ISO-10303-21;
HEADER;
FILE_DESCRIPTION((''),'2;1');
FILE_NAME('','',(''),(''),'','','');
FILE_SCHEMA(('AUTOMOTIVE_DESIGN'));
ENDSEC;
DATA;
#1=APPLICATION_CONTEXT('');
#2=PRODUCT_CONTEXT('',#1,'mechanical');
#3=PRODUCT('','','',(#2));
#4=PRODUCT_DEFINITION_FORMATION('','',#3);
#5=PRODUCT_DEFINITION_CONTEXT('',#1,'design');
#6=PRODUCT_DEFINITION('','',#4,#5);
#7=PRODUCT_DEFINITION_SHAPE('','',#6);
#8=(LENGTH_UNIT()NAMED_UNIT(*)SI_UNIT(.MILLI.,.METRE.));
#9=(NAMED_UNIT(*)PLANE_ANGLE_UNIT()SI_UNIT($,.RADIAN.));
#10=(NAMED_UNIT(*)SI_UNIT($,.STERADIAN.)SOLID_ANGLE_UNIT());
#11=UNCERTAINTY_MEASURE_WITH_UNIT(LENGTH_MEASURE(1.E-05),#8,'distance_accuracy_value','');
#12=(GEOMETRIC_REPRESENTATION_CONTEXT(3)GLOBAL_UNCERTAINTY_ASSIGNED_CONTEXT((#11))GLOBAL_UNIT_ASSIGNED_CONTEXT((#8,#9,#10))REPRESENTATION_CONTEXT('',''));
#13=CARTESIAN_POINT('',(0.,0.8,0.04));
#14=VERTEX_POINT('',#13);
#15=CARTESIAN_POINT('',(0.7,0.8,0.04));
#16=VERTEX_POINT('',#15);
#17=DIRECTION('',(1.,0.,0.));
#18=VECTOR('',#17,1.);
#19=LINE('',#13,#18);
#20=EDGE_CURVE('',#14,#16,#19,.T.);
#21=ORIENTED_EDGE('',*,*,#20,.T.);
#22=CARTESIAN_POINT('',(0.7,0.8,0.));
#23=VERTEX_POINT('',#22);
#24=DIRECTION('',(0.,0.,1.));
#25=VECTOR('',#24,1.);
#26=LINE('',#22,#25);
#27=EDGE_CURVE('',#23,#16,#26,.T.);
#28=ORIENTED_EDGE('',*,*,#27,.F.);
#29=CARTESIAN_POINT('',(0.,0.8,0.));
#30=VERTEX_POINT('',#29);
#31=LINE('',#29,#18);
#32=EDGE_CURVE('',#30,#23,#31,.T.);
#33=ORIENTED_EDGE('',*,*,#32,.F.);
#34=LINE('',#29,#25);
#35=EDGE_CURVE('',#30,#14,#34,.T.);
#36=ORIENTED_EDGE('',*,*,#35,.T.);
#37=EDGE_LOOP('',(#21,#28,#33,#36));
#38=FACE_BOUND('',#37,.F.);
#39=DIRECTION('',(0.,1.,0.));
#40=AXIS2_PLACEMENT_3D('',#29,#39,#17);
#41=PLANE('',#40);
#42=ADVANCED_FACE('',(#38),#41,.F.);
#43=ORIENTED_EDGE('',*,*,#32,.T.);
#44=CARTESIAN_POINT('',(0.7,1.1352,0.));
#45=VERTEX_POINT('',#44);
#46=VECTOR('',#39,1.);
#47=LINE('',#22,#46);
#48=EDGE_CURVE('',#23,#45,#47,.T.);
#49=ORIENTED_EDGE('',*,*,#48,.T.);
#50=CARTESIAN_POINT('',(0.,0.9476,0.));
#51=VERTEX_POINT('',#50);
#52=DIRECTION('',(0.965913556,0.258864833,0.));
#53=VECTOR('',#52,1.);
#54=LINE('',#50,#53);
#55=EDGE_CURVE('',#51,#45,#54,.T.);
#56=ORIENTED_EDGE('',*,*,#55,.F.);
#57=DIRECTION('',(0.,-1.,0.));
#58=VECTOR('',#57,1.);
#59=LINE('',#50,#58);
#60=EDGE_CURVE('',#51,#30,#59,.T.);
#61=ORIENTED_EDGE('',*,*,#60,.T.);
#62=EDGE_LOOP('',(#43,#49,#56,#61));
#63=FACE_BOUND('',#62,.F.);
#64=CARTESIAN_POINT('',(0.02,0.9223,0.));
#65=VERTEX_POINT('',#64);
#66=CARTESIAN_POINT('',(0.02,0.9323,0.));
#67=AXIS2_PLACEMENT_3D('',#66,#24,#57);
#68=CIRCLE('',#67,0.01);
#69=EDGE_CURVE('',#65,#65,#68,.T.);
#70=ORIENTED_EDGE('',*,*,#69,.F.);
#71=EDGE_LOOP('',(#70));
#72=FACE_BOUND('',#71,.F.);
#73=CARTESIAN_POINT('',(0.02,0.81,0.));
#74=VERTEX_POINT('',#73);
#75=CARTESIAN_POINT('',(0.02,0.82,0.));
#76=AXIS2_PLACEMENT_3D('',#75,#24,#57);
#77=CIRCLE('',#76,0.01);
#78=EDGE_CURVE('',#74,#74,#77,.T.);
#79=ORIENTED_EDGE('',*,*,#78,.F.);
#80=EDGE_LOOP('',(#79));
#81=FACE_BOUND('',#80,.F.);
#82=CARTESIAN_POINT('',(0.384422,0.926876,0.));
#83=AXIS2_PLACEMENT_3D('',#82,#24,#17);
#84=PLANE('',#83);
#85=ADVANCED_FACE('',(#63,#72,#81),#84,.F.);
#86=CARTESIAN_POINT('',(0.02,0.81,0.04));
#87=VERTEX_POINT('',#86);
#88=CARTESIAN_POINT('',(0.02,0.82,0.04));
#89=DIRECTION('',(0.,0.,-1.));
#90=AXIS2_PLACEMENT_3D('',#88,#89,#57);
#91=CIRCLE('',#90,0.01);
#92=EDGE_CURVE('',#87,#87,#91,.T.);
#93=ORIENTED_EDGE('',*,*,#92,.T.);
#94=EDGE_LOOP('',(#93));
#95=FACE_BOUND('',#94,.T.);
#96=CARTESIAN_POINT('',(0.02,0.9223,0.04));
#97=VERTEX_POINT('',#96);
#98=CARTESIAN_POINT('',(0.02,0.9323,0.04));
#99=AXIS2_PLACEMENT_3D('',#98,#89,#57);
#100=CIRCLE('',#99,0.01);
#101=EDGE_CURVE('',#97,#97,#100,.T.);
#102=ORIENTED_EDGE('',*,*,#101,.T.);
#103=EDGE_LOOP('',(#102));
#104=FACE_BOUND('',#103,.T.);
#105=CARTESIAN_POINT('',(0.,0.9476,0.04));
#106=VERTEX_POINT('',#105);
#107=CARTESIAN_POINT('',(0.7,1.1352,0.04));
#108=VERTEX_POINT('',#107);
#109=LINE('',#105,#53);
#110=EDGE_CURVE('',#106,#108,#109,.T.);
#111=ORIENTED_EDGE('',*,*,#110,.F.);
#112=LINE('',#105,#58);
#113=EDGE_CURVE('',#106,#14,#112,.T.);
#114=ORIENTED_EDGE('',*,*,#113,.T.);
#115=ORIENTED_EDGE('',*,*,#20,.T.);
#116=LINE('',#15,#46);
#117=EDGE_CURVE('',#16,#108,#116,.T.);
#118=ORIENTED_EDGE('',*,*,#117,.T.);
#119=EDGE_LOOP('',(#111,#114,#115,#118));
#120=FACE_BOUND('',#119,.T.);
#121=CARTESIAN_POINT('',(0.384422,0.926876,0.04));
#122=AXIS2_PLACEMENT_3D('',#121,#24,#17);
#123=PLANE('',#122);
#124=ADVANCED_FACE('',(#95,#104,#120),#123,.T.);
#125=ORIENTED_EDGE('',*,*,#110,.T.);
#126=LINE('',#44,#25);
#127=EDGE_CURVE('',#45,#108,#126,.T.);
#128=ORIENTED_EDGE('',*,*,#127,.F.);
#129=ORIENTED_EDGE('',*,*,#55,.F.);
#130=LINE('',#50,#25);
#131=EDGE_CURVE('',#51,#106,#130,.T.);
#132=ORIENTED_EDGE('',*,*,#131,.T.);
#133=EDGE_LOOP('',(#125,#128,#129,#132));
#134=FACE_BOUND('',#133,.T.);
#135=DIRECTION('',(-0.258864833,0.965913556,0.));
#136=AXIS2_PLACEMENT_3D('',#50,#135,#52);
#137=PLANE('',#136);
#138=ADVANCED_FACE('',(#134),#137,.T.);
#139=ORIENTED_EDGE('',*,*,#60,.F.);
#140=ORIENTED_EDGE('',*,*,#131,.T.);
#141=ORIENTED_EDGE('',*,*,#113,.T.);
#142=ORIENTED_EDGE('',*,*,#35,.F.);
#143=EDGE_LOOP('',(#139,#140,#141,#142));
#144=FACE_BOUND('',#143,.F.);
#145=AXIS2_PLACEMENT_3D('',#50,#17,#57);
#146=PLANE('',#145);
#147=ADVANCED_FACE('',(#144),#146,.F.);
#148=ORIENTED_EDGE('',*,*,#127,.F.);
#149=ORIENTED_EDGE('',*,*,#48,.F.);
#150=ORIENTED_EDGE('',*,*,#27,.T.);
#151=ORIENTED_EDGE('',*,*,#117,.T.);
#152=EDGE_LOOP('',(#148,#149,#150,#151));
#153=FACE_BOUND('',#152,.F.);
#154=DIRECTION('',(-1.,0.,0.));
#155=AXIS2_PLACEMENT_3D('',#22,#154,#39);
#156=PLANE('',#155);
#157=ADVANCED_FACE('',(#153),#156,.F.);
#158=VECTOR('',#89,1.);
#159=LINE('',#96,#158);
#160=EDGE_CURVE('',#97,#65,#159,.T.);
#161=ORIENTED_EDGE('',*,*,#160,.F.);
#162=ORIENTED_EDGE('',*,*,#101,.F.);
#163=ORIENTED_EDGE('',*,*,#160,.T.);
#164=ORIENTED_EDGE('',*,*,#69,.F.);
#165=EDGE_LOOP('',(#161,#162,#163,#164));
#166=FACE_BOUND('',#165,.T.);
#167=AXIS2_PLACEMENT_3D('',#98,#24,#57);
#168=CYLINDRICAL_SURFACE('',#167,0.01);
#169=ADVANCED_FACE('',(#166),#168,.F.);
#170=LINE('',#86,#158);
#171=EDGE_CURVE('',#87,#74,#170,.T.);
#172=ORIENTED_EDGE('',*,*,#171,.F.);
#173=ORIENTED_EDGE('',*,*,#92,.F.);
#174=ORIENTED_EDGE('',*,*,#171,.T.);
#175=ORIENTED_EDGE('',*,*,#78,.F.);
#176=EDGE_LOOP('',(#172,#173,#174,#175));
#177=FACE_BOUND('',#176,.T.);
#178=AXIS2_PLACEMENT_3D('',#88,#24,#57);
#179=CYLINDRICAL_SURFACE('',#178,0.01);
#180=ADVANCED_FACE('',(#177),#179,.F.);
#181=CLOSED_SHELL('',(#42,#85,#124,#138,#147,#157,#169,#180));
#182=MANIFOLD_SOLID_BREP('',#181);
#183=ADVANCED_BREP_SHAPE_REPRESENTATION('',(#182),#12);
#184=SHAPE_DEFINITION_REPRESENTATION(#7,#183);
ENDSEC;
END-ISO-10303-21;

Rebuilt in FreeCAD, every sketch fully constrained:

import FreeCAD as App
import Part
import Sketcher

V = App.Vector
Q = App.Units.Quantity


def add_polygon(sketch, points):
    """Adds a closed chain of lines whose ends are joined by coincident constraints."""
    first, n = sketch.GeometryCount, len(points)
    for a, b in zip(points, points[1:] + points[:1]):
        sketch.addGeometry(Part.LineSegment(App.Vector(*a, 0), App.Vector(*b, 0)), False)
    for i in range(n):
        sketch.addConstraint(Sketcher.Constraint("Coincident", first + i, 2, first + (i + 1) % n, 1))

doc = App.newDocument("Part")
params = doc.addObject("Spreadsheet::Sheet", "Params")
for row, (alias, value) in enumerate([
    ("sketch1_width", "0.7 mm"),
    ("pad1_length", "0.04 mm"),
    ("sketch2_diameter", "0.02 mm"),
    ("hole_diameter", "0.02 mm"),
    ("sketch3_diameter", "0.02 mm"),
    ("hole2_diameter", "0.02 mm"),
], start=1):
    params.set(f"A{row}", alias)
    params.set(f"B{row}", "=" + value)
    params.setAlias(f"B{row}", alias)

body = doc.addObject("PartDesign::Body", "Body")

# Sketch on XY plane
sketch1 = body.newObject("Sketcher::SketchObject", "Sketch")
sketch1.AttachmentSupport = (doc.getObject("XY_Plane"), [""])
sketch1.MapMode = "FlatFace"
add_polygon(sketch1, [(0, 0.95), (0, 0.8), (0.7, 0.8), (0.7, 1.14)])  # lines 0-3
sketch1.addConstraint([
    Sketcher.Constraint("Vertical", 0),
    Sketcher.Constraint("Horizontal", 1),
    Sketcher.Constraint("Vertical", 2),
    Sketcher.Constraint("PointOnObject", 0, 2, -2),
    Sketcher.Constraint("DistanceX", 1, 1, 1, 2, Q("0.7 mm")),
    Sketcher.Constraint("DistanceY", -1, 1, 0, 2, Q("0.8 mm")),
    Sketcher.Constraint("DistanceY", 0, 2, 0, 1, Q("0.1476 mm")),
    Sketcher.Constraint("DistanceY", 2, 1, 2, 2, Q("0.3352 mm")),
])
sketch1.setExpression("Constraints[8]", "Params.sketch1_width")
pad1 = body.newObject("PartDesign::Pad", "Pad")
pad1.Profile = sketch1
pad1.setExpression("Length", "Params.pad1_length")

# Sketch on XY plane
sketch2 = body.newObject("Sketcher::SketchObject", "Sketch001")
sketch2.AttachmentSupport = (doc.getObject("XY_Plane"), [""])
sketch2.MapMode = "FlatFace"
sketch2.AttachmentOffset = App.Placement(V(0, 0, 0.04), App.Rotation())
sketch2.addGeometry(Part.Circle(V(0.02, 0.82, 0), V(0, 0, 1), 0.01), False)
sketch2.addConstraint([
    Sketcher.Constraint("Diameter", 0, Q("0.02 mm")),
    Sketcher.Constraint("DistanceX", -1, 1, 0, 3, Q("0.02 mm")),
    Sketcher.Constraint("DistanceY", -1, 1, 0, 3, Q("0.82 mm")),
])
sketch2.setExpression("Constraints[0]", "Params.sketch2_diameter")
doc.recompute()
hole = body.newObject("PartDesign::Hole", "Hole")
hole.Profile = sketch2
hole.ThreadType = "None"
hole.setExpression("Diameter", "Params.hole_diameter")
hole.DepthType = "ThroughAll"

# Sketch on XY plane
sketch3 = body.newObject("Sketcher::SketchObject", "Sketch002")
sketch3.AttachmentSupport = (doc.getObject("XY_Plane"), [""])
sketch3.MapMode = "FlatFace"
sketch3.AttachmentOffset = App.Placement(V(0, 0, 0.04), App.Rotation())
sketch3.addGeometry(Part.Circle(V(0.02, 0.932, 0), V(0, 0, 1), 0.01), False)
sketch3.addConstraint([
    Sketcher.Constraint("Diameter", 0, Q("0.02 mm")),
    Sketcher.Constraint("DistanceX", -1, 1, 0, 3, Q("0.02 mm")),
    Sketcher.Constraint("DistanceY", -1, 1, 0, 3, Q("0.9323 mm")),
])
sketch3.setExpression("Constraints[0]", "Params.sketch3_diameter")
doc.recompute()
hole2 = body.newObject("PartDesign::Hole", "Hole001")
hole2.Profile = sketch3
hole2.ThreadType = "None"
hole2.setExpression("Diameter", "Params.hole2_diameter")
hole2.DepthType = "ThroughAll"

doc.recompute()
